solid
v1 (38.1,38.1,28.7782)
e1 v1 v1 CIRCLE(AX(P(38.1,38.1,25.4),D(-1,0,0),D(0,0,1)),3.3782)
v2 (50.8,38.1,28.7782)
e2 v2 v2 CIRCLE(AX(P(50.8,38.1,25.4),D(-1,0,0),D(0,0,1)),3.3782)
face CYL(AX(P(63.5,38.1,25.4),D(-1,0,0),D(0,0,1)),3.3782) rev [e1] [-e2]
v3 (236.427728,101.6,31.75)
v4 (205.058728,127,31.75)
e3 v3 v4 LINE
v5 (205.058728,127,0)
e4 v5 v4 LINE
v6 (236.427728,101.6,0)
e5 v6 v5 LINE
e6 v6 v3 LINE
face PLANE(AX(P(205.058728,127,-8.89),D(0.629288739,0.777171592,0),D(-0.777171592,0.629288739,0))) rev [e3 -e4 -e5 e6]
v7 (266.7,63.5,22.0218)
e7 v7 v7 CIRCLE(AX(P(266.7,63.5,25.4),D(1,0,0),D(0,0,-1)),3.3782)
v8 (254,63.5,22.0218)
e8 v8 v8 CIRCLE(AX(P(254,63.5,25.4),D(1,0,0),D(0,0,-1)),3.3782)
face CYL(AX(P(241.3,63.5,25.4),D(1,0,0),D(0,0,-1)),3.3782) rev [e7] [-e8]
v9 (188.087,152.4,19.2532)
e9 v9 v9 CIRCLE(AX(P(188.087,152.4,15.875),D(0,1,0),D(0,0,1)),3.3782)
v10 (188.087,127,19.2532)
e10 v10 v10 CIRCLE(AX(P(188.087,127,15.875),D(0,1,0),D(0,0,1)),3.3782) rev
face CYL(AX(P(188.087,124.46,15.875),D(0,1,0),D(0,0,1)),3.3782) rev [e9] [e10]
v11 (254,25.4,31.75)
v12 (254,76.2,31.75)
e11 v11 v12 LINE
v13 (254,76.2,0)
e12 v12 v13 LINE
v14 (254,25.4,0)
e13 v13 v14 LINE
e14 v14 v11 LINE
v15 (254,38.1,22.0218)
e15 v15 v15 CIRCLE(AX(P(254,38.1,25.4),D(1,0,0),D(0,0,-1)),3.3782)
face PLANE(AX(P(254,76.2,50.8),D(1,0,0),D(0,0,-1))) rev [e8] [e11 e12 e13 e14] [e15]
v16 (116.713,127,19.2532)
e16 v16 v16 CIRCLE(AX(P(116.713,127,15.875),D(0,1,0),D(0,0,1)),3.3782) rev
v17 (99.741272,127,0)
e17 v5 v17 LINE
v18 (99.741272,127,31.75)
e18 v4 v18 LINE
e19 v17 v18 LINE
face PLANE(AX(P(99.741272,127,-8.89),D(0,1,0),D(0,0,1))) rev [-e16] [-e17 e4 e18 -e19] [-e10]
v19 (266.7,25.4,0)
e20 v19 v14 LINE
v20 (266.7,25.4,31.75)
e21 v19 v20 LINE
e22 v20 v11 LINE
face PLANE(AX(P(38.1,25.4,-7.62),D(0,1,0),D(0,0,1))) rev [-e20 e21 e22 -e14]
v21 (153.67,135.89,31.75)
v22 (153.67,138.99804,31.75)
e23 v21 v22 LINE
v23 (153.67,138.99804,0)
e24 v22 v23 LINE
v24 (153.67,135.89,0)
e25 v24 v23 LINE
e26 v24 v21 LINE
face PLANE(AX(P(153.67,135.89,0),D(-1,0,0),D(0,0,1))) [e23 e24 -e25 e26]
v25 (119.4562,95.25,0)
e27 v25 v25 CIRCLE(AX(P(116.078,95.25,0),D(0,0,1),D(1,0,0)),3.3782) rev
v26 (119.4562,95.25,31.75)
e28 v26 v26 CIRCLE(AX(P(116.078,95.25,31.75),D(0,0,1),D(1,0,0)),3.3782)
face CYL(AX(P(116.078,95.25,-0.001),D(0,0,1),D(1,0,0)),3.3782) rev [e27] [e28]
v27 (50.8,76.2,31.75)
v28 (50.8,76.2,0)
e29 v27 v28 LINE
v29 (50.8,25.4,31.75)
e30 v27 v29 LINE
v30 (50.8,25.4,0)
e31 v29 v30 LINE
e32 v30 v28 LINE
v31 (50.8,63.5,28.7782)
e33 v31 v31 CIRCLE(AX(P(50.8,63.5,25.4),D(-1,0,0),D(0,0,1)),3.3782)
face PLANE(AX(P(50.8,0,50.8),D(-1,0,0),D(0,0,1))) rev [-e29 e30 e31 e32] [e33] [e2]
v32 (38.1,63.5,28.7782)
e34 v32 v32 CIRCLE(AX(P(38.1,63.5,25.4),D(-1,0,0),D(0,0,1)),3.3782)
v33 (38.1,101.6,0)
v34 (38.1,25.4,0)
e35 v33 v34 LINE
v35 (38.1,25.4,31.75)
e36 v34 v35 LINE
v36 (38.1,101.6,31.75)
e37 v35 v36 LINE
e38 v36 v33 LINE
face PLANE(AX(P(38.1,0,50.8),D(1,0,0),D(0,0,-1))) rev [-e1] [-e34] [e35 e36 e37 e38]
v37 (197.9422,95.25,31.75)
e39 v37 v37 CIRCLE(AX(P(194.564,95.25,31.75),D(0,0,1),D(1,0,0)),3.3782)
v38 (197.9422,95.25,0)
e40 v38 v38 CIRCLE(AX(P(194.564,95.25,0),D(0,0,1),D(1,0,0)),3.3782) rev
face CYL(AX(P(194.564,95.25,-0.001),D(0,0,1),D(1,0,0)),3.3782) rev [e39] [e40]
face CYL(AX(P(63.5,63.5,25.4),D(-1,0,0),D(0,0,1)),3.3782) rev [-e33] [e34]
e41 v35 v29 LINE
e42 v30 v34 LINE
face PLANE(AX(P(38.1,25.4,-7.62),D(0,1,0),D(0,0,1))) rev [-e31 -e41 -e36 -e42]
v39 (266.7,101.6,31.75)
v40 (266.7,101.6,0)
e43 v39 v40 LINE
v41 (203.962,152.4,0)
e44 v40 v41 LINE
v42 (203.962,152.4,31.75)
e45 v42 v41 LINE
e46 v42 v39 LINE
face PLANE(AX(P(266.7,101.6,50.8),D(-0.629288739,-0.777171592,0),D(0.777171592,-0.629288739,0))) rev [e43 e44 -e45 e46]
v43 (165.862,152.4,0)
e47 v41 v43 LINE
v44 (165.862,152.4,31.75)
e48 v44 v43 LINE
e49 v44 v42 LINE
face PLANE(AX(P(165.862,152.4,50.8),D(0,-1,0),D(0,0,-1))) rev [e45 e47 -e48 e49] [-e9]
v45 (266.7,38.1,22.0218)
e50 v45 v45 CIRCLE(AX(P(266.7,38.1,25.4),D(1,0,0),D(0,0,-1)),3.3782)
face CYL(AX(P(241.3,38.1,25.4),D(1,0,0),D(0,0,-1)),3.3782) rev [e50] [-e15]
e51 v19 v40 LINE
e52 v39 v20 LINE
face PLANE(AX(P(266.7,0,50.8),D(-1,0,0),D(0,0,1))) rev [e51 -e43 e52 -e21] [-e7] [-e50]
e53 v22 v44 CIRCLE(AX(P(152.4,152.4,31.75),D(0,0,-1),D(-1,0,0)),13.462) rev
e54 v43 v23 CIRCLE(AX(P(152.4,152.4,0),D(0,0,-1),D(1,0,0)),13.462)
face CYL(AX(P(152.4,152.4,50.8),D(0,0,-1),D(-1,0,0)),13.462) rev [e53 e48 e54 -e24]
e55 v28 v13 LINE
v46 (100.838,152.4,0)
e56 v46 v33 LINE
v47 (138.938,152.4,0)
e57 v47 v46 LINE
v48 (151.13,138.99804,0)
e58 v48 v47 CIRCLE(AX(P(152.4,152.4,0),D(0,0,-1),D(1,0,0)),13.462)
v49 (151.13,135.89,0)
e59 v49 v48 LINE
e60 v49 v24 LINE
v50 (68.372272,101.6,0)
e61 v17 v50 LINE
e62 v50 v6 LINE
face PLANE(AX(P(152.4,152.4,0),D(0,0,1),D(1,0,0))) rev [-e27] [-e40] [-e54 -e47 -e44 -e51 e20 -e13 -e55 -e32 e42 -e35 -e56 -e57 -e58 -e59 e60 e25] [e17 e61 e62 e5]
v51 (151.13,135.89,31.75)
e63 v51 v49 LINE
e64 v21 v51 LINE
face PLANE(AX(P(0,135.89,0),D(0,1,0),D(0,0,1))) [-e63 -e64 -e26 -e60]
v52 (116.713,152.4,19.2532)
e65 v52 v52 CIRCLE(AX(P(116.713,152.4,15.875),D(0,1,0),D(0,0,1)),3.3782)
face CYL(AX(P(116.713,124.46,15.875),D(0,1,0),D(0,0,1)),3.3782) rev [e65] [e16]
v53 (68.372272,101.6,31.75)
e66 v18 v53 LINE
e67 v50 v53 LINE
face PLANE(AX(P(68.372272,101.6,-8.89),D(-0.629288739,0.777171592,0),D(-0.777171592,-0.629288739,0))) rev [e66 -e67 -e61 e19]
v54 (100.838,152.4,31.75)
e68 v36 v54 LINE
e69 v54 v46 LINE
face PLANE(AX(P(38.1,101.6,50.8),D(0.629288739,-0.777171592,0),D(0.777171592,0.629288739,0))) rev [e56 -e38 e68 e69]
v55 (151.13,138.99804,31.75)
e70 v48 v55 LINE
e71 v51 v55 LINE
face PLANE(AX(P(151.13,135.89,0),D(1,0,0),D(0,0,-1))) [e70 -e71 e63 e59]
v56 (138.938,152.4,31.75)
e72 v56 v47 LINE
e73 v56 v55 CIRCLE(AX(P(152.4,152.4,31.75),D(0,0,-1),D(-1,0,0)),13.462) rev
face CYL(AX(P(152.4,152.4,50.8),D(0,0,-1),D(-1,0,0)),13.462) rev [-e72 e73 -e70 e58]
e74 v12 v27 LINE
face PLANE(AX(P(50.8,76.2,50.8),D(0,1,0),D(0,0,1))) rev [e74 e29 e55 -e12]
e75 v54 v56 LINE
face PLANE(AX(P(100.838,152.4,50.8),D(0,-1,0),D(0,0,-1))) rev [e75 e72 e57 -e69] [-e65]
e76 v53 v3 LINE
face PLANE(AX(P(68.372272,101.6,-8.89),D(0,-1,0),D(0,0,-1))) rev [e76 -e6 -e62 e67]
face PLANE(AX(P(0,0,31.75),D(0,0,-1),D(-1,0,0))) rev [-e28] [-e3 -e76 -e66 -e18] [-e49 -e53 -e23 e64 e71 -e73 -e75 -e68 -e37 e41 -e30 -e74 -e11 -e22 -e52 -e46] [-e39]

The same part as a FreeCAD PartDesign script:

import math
import FreeCAD as App
import Part
import Sketcher
Q = App.Units.Quantity


def add_polygon(sketch, points):
    """Adds a closed chain of lines whose ends are joined by coincident constraints."""
    first, n = sketch.GeometryCount, len(points)
    for a, b in zip(points, points[1:] + points[:1]):
        sketch.addGeometry(Part.LineSegment(App.Vector(*a, 0), App.Vector(*b, 0)), False)
    for i in range(n):
        sketch.addConstraint(Sketcher.Constraint("Coincident", first + i, 2, first + (i + 1) % n, 1))

doc = App.newDocument("Part")
params = doc.addObject("Spreadsheet::Sheet", "Params")
for row, (alias, value) in enumerate([
    ("sketch1_width", "8 in"),
    ("sketch1_height", "4 in"),
    ("sketch1_height2", "3 in"),
    ("sketch1_radius", "0.53 in"),
    ("sketch1_width2", "0.5 in"),
    ("pad1_length", "2 in"),
    ("sketch2_diameter", "0.266 in"),
    ("pocket1_length", "1 in"),
    ("sketch3_diameter", "0.266 in"),
    ("pocket2_length", "1 in"),
    ("pocket3_length", "0.75 in"),
    ("sketch5_width", "9 in"),
    ("sketch5_height", "1 in"),
    ("pocket4_length", "1.55 in"),
    ("sketch6_diameter", "0.266 in"),
    ("pocket5_length", "1.1 in"),
    ("pocket6_length", "1.6 in"),
    ("sketch8_width", "0.1 in"),
    ("sketch8_height", "1.25 in"),
    ("pocket7_length", "0.65 in"),
    ("sketch9_diameter", "0.266 in"),
    ("sketch10_diameter", "0.266 in"),
], start=1):
    params.set(f"A{row}", alias)
    params.set(f"B{row}", "=" + value)
    params.setAlias(f"B{row}", alias)

body = doc.addObject("PartDesign::Body", "Body")

sketch1 = body.newObject("Sketcher::SketchObject", "Sketch")
sketch1.AttachmentSupport = (doc.getObject("XY_Plane"), [""])
sketch1.MapMode = "FlatFace"
sketch1.addGeometry([
    Part.LineSegment(App.Vector(254, 0, 0), App.Vector(267, 0, 0)),
    Part.LineSegment(App.Vector(267, 0, 0), App.Vector(267, 102, 0)),
    Part.LineSegment(App.Vector(267, 102, 0), App.Vector(204, 152, 0)),
    Part.LineSegment(App.Vector(204, 152, 0), App.Vector(166, 152, 0)),
    Part.ArcOfCircle(Part.Circle(App.Vector(152, 152, 0), App.Vector(0, 0, 1), 13), math.radians(180), math.radians(360)),
    Part.LineSegment(App.Vector(139, 152, 0), App.Vector(101, 152, 0)),
    Part.LineSegment(App.Vector(101, 152, 0), App.Vector(38, 102, 0)),
    Part.LineSegment(App.Vector(38, 102, 0), App.Vector(38, 0, 0)),
    Part.LineSegment(App.Vector(38, 0, 0), App.Vector(51, 0, 0)),
    Part.LineSegment(App.Vector(51, 0, 0), App.Vector(51, 76, 0)),
    Part.LineSegment(App.Vector(51, 76, 0), App.Vector(254, 76, 0)),
    Part.LineSegment(App.Vector(254, 76, 0), App.Vector(254, 0, 0)),
], False)
sketch1.addConstraint([
    Sketcher.Constraint("Coincident", 0, 2, 1, 1),
    Sketcher.Constraint("Coincident", 1, 2, 2, 1),
    Sketcher.Constraint("Coincident", 2, 2, 3, 1),
    Sketcher.Constraint("Coincident", 3, 2, 4, 2),
    Sketcher.Constraint("Coincident", 4, 1, 5, 1),
    Sketcher.Constraint("Coincident", 5, 2, 6, 1),
    Sketcher.Constraint("Coincident", 6, 2, 7, 1),
    Sketcher.Constraint("Coincident", 7, 2, 8, 1),
    Sketcher.Constraint("Coincident", 8, 2, 9, 1),
    Sketcher.Constraint("Coincident", 9, 2, 10, 1),
    Sketcher.Constraint("Coincident", 10, 2, 11, 1),
    Sketcher.Constraint("Coincident", 11, 2, 0, 1),
    Sketcher.Constraint("Horizontal", 0),
    Sketcher.Constraint("Vertical", 1),
    Sketcher.Constraint("Horizontal", 3),
    Sketcher.Constraint("Horizontal", 5),
    Sketcher.Constraint("Vertical", 7),
    Sketcher.Constraint("Horizontal", 8),
    Sketcher.Constraint("Vertical", 9),
    Sketcher.Constraint("Horizontal", 10),
    Sketcher.Constraint("Vertical", 11),
    Sketcher.Constraint("PointOnObject", 0, 2, -1),
    Sketcher.Constraint("PointOnObject", 7, 2, -1),
    Sketcher.Constraint("Horizontal", 4, 3, 2, 2),
    Sketcher.Constraint("Horizontal", 3, 2, 4, 1),
    Sketcher.Constraint("Horizontal", 1, 2, 6, 2),
    Sketcher.Constraint("Equal", 3, 5),
    Sketcher.Constraint("Equal", 0, 8),
    Sketcher.Constraint("Equal", 2, 6),
    Sketcher.Constraint("DistanceX", 10, 1, 10, 2, Q("8 in")),
    Sketcher.Constraint("DistanceY", 1, 1, 1, 2, Q("4 in")),
    Sketcher.Constraint("DistanceY", 9, 1, 9, 2, Q("3 in")),
    Sketcher.Constraint("Radius", 4, Q("0.53 in")),
    Sketcher.Constraint("DistanceX", 0, 1, 0, 2, Q("0.5 in")),
    Sketcher.Constraint("DistanceX", 3, 2, 3, 1, Q("1.5 in")),
    Sketcher.Constraint("DistanceX", -1, 1, 4, 3, Q("6 in")),
    Sketcher.Constraint("DistanceY", -1, 1, 4, 3, Q("6 in")),
])
sketch1.setExpression("Constraints[29]", "Params.sketch1_width")
sketch1.setExpression("Constraints[30]", "Params.sketch1_height")
sketch1.setExpression("Constraints[31]", "Params.sketch1_height2")
sketch1.setExpression("Constraints[32]", "Params.sketch1_radius")
sketch1.setExpression("Constraints[33]", "Params.sketch1_width2")
pad1 = body.newObject("PartDesign::Pad", "Pad")
pad1.Profile = sketch1
pad1.setExpression("Length", "Params.pad1_length")

sketch2 = body.newObject("Sketcher::SketchObject", "Sketch001")
sketch2.AttachmentSupport = (doc.getObject("YZ_Plane"), [""])
sketch2.MapMode = "FlatFace"
sketch2.AttachmentOffset = App.Placement(App.Vector(0, 0, 1.5 * 25.4), App.Rotation())
sketch2.addGeometry([
    Part.Circle(App.Vector(63.5, 25.4, 0), App.Vector(0, 0, 1), 3.4),
    Part.Circle(App.Vector(38.1, 25.4, 0), App.Vector(0, 0, 1), 3.4),
], False)
sketch2.addConstraint([
    Sketcher.Constraint("Equal", 0, 1),
    Sketcher.Constraint("Horizontal", 0, 3, 1, 3),
    Sketcher.Constraint("Diameter", 0, Q("0.266 in")),
    Sketcher.Constraint("DistanceY", -1, 1, 0, 3, Q("1 in")),
    Sketcher.Constraint("DistanceX", 1, 3, 0, 3, Q("1 in")),
    Sketcher.Constraint("DistanceX", -1, 1, 0, 3, Q("2.5 in")),
])
sketch2.setExpression("Constraints[2]", "Params.sketch2_diameter")
pocket1 = body.newObject("PartDesign::Pocket", "Pocket")
pocket1.Profile = sketch2
pocket1.setExpression("Length", "Params.pocket1_length")
pocket1.Reversed = True

sketch3 = body.newObject("Sketcher::SketchObject", "Sketch002")
sketch3.AttachmentSupport = (doc.getObject("YZ_Plane"), [""])
sketch3.MapMode = "FlatFace"
sketch3.AttachmentOffset = App.Placement(App.Vector(0, 0, 10.5 * 25.4), App.Rotation())
sketch3.addGeometry([
    Part.Circle(App.Vector(63.5, 25.4, 0), App.Vector(0, 0, 1), 3.4),
    Part.Circle(App.Vector(38.1, 25.4, 0), App.Vector(0, 0, 1), 3.4),
], False)
sketch3.addConstraint([
    Sketcher.Constraint("Equal", 0, 1),
    Sketcher.Constraint("Horizontal", 0, 3, 1, 3),
    Sketcher.Constraint("Diameter", 0, Q("0.266 in")),
    Sketcher.Constraint("DistanceY", -1, 1, 0, 3, Q("1 in")),
    Sketcher.Constraint("DistanceX", 1, 3, 0, 3, Q("1 in")),
    Sketcher.Constraint("DistanceX", -1, 1, 0, 3, Q("2.5 in")),
])
sketch3.setExpression("Constraints[2]", "Params.sketch3_diameter")
pocket2 = body.newObject("PartDesign::Pocket", "Pocket001")
pocket2.Profile = sketch3
pocket2.setExpression("Length", "Params.pocket2_length")

sketch4 = body.newObject("Sketcher::SketchObject", "Sketch003")
sketch4.AttachmentSupport = (doc.getObject("XY_Plane"), [""])
sketch4.MapMode = "FlatFace"
sketch4.AttachmentOffset = App.Placement(App.Vector(0, 0, 2 * 25.4), App.Rotation())
add_polygon(sketch4, [(12, 174), (12, -21), (292, -21), (292, 174)])
sketch4.addConstraint([
    Sketcher.Constraint("Vertical", 0),
    Sketcher.Constraint("Horizontal", 1),
    Sketcher.Constraint("Vertical", 2),
    Sketcher.Constraint("Horizontal", 3),
    Sketcher.Constraint("DistanceX", 1, 1, 1, 2, 279.740966),
    Sketcher.Constraint("DistanceY", 0, 2, 0, 1, 194.949015),
    Sketcher.Constraint("DistanceX", -1, 1, 0, 2, 12.167158),
    Sketcher.Constraint("DistanceY", 0, 2, -1, 1, 21.274508),
])
pocket3 = body.newObject("PartDesign::Pocket", "Pocket002")
pocket3.Profile = sketch4
pocket3.setExpression("Length", "Params.pocket3_length")

sketch5 = body.newObject("Sketcher::SketchObject", "Sketch004")
sketch5.AttachmentSupport = (doc.getObject("XY_Plane"), [""])
sketch5.MapMode = "FlatFace"
sketch5.AttachmentOffset = App.Placement(App.Vector(0, 0, 1.25 * 25.4), App.Rotation())
add_polygon(sketch5, [(38, 25), (38, 0), (267, 0), (267, 25)])
sketch5.addConstraint([
    Sketcher.Constraint("Vertical", 0),
    Sketcher.Constraint("Horizontal", 1),
    Sketcher.Constraint("Vertical", 2),
    Sketcher.Constraint("Horizontal", 3),
    Sketcher.Constraint("PointOnObject", 0, 2, -1),
    Sketcher.Constraint("DistanceX", 1, 1, 1, 2, Q("9 in")),
    Sketcher.Constraint("DistanceY", 0, 2, 0, 1, Q("1 in")),
    Sketcher.Constraint("DistanceX", -1, 1, 0, 2, Q("1.5 in")),
])
sketch5.setExpression("Constraints[9]", "Params.sketch5_width")
sketch5.setExpression("Constraints[10]", "Params.sketch5_height")
pocket4 = body.newObject("PartDesign::Pocket", "Pocket003")
pocket4.Profile = sketch5
pocket4.setExpression("Length", "Params.pocket4_length")

sketch6 = body.newObject("Sketcher::SketchObject", "Sketch005")
sketch6.AttachmentSupport = (doc.getObject("XZ_Plane"), [""])
sketch6.MapMode = "FlatFace"
sketch6.AttachmentOffset = App.Placement(App.Vector(0, 0, -6 * 25.4), App.Rotation())
sketch6.addGeometry([
    Part.Circle(App.Vector(116.7, 15.9, 0), App.Vector(0, 0, 1), 3.4),
    Part.Circle(App.Vector(188.1, 15.9, 0), App.Vector(0, 0, 1), 3.4),
], False)
sketch6.addConstraint([
    Sketcher.Constraint("Equal", 0, 1),
    Sketcher.Constraint("Horizontal", 0, 3, 1, 3),
    Sketcher.Constraint("Diameter", 0, Q("0.266 in")),
    Sketcher.Constraint("DistanceX", 0, 3, 1, 3, Q("2.81 in")),
    Sketcher.Constraint("DistanceX", -1, 1, 0, 3, Q("4.595 in")),
    Sketcher.Constraint("DistanceY", -1, 1, 0, 3, Q("0.625 in")),
])
sketch6.setExpression("Constraints[2]", "Params.sketch6_diameter")
pocket5 = body.newObject("PartDesign::Pocket", "Pocket004")
pocket5.Profile = sketch6
pocket5.setExpression("Length", "Params.pocket5_length")
pocket5.Reversed = True

sketch7 = body.newObject("Sketcher::SketchObject", "Sketch006")
sketch7.AttachmentSupport = (doc.getObject("XY_Plane"), [""])
sketch7.MapMode = "FlatFace"
sketch7.AttachmentOffset = App.Placement(App.Vector(0, 0, 1.25 * 25.4), App.Rotation())
add_polygon(sketch7, [(100, 127), (68, 102), (236, 102), (205, 127)])
sketch7.addConstraint([
    Sketcher.Constraint("Horizontal", 1),
    Sketcher.Constraint("Horizontal", 3),
    Sketcher.Constraint("Equal", 0, 2),
    Sketcher.Constraint("DistanceY", -1, 1, 0, 2, Q("4 in")),
    Sketcher.Constraint("DistanceY", -1, 1, 2, 2, Q("5 in")),
    Sketcher.Constraint("DistanceX", 2, 2, 1, 2, Q("1.235 in")),
    Sketcher.Constraint("DistanceX", 1, 1, 1, 2, 168.055456),
    Sketcher.Constraint("DistanceX", -1, 1, 0, 2, 68.372272),
])
pocket6 = body.newObject("PartDesign::Pocket", "Pocket005")
pocket6.Profile = sketch7
pocket6.setExpression("Length", "Params.pocket6_length")

sketch8 = body.newObject("Sketcher::SketchObject", "Sketch007")
sketch8.AttachmentSupport = (doc.getObject("XZ_Plane"), [""])
sketch8.MapMode = "FlatFace"
sketch8.AttachmentOffset = App.Placement(App.Vector(0, 0, -6 * 25.4), App.Rotation())
add_polygon(sketch8, [(153.7, 31.8), (153.7, 0), (151.1, 0), (151.1, 31.8)])
sketch8.addConstraint([
    Sketcher.Constraint("Vertical", 0),
    Sketcher.Constraint("Horizontal", 1),
    Sketcher.Constraint("Vertical", 2),
    Sketcher.Constraint("Horizontal", 3),
    Sketcher.Constraint("PointOnObject", 0, 2, -1),
    Sketcher.Constraint("DistanceX", 1, 2, 1, 1, Q("0.1 in")),
    Sketcher.Constraint("DistanceY", 0, 2, 0, 1, Q("1.25 in")),
    Sketcher.Constraint("DistanceX", -1, 1, 0, 2, Q("6.05 in")),
])
sketch8.setExpression("Constraints[9]", "Params.sketch8_width")
sketch8.setExpression("Constraints[10]", "Params.sketch8_height")
pocket7 = body.newObject("PartDesign::Pocket", "Pocket006")
pocket7.Profile = sketch8
pocket7.setExpression("Length", "Params.pocket7_length")
pocket7.Reversed = True

sketch9 = body.newObject("Sketcher::SketchObject", "Sketch008")
sketch9.AttachmentSupport = (doc.getObject("XY_Plane"), [""])
sketch9.MapMode = "FlatFace"
sketch9.AttachmentOffset = App.Placement(App.Vector(0, 0, 1.25 * 25.4), App.Rotation())
sketch9.addGeometry(Part.Circle(App.Vector(116.1, 95.2, 0), App.Vector(0, 0, 1), 3.4), False)
sketch9.addConstraint([
    Sketcher.Constraint("Diameter", 0, Q("0.266 in")),
    Sketcher.Constraint("DistanceX", -1, 1, 0, 3, Q("4.57 in")),
    Sketcher.Constraint("DistanceY", -1, 1, 0, 3, Q("3.75 in")),
])
sketch9.setExpression("Constraints[0]", "Params.sketch9_diameter")
pocket8 = body.newObject("PartDesign::Pocket", "Pocket007")
pocket8.Profile = sketch9
pocket8.Type = "UpToFirst"

sketch10 = body.newObject("Sketcher::SketchObject", "Sketch009")
sketch10.AttachmentSupport = (doc.getObject("XY_Plane"), [""])
sketch10.MapMode = "FlatFace"
sketch10.AttachmentOffset = App.Placement(App.Vector(0, 0, 1.25 * 25.4), App.Rotation())
sketch10.addGeometry(Part.Circle(App.Vector(194.6, 95.2, 0), App.Vector(0, 0, 1), 3.4), False)
sketch10.addConstraint([
    Sketcher.Constraint("Diameter", 0, Q("0.266 in")),
    Sketcher.Constraint("DistanceX", -1, 1, 0, 3, Q("7.66 in")),
    Sketcher.Constraint("DistanceY", -1, 1, 0, 3, Q("3.75 in")),
])
sketch10.setExpression("Constraints[0]", "Params.sketch10_diameter")
pocket9 = body.newObject("PartDesign::Pocket", "Pocket008")
pocket9.Profile = sketch10
pocket9.Type = "UpToFirst"

doc.recompute()
